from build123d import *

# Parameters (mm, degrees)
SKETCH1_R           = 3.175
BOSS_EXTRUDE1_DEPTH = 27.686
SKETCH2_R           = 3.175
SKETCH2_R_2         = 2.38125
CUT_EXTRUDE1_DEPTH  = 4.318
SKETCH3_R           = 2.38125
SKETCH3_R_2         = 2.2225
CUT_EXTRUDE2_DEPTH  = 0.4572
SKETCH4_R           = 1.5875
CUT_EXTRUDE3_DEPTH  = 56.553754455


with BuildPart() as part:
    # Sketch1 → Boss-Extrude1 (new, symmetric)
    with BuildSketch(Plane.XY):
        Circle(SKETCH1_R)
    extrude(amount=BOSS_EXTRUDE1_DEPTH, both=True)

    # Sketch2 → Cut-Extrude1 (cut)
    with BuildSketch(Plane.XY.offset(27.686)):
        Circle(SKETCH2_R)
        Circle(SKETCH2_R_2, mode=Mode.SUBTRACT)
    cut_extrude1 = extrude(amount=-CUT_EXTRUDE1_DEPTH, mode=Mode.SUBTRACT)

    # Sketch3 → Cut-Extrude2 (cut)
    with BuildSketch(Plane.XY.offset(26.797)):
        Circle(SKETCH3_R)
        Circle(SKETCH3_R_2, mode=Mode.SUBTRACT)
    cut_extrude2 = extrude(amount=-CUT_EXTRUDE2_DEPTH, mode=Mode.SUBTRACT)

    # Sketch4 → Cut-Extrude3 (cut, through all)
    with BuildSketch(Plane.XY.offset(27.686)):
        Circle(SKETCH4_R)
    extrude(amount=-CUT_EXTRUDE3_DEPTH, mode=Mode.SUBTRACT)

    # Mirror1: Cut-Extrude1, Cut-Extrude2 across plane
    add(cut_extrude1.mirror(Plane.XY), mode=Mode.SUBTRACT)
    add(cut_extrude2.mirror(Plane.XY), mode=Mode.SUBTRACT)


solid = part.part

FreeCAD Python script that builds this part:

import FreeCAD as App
import Part
import Sketcher

V = App.Vector
Q = App.Units.Quantity

doc = App.newDocument("Part")
body = doc.addObject("PartDesign::Body", "Body")

# Sketch on XY plane
sketch1 = doc.addObject("Sketcher::SketchObject", "Sketch")
body.addObject(sketch1)
sketch1.AttachmentSupport = (doc.XY_Plane, [""])
sketch1.MapMode = "FlatFace"
sketch1.addGeometry(Part.Circle(V(0, 0, 0), V(0, 0, 1), 3.2), False)
sketch1.addConstraint([
    Sketcher.Constraint("Coincident", 0, 3, -1, 1),
    Sketcher.Constraint("Diameter", 0, Q("0.25 in")),
])
pad1 = doc.addObject("PartDesign::Pad", "Pad")
body.addObject(pad1)
pad1.Profile = sketch1
pad1.Length = Q("2.18 in")
pad1.Midplane = True

# Sketch on XY plane
sketch2 = doc.addObject("Sketcher::SketchObject", "Sketch001")
body.addObject(sketch2)
sketch2.AttachmentSupport = (doc.XY_Plane, [""])
sketch2.MapMode = "FlatFace"
sketch2.AttachmentOffset = App.Placement(V(0, 0, 1.09 * 25.4), App.Rotation())
sketch2.addGeometry([
    Part.Circle(V(0, 0, 0), V(0, 0, 1), 3.2),
    Part.Circle(V(0, 0, 0), V(0, 0, 1), 2.4),
], False)
sketch2.addConstraint([
    Sketcher.Constraint("Coincident", 0, 3, -1, 1),
    Sketcher.Constraint("Coincident", 1, 3, -1, 1),
    Sketcher.Constraint("Diameter", 0, Q("0.25 in")),
    Sketcher.Constraint("Diameter", 1, Q("0.1875 in")),
])
pocket1 = doc.addObject("PartDesign::Pocket", "Pocket")
body.addObject(pocket1)
pocket1.Profile = sketch2
pocket1.Length = Q("0.17 in")

# Sketch on XY plane
sketch3 = doc.addObject("Sketcher::SketchObject", "Sketch002")
body.addObject(sketch3)
sketch3.AttachmentSupport = (doc.XY_Plane, [""])
sketch3.MapMode = "FlatFace"
sketch3.AttachmentOffset = App.Placement(V(0, 0, 1.055 * 25.4), App.Rotation())
sketch3.addGeometry([
    Part.Circle(V(0, 0, 0), V(0, 0, 1), 2.4),
    Part.Circle(V(0, 0, 0), V(0, 0, 1), 2.2),
], False)
sketch3.addConstraint([
    Sketcher.Constraint("Coincident", 0, 3, -1, 1),
    Sketcher.Constraint("Coincident", 1, 3, -1, 1),
    Sketcher.Constraint("Diameter", 0, Q("0.1875 in")),
    Sketcher.Constraint("Diameter", 1, Q("0.175 in")),
])
pocket2 = doc.addObject("PartDesign::Pocket", "Pocket001")
body.addObject(pocket2)
pocket2.Profile = sketch3
pocket2.Length = Q("0.018 in")

# Sketch on XY plane
sketch4 = doc.addObject("Sketcher::SketchObject", "Sketch003")
body.addObject(sketch4)
sketch4.AttachmentSupport = (doc.XY_Plane, [""])
sketch4.MapMode = "FlatFace"
sketch4.AttachmentOffset = App.Placement(V(0, 0, 1.09 * 25.4), App.Rotation())
sketch4.addGeometry(Part.Circle(V(0, 0, 0), V(0, 0, 1), 1.6), False)
sketch4.addConstraint([
    Sketcher.Constraint("Coincident", 0, 3, -1, 1),
    Sketcher.Constraint("Diameter", 0, Q("0.125 in")),
])
pocket3 = doc.addObject("PartDesign::Pocket", "Pocket002")
body.addObject(pocket3)
pocket3.Profile = sketch4
pocket3.Type = "ThroughAll"
doc.recompute()

mirrored = doc.addObject("PartDesign::Mirrored", "Mirrored")
body.addObject(mirrored)
mirrored.Originals = [pocket1, pocket2]
mirrored.MirrorPlane = (doc.XY_Plane, [""])
body.Tip = mirrored

doc.recompute()
